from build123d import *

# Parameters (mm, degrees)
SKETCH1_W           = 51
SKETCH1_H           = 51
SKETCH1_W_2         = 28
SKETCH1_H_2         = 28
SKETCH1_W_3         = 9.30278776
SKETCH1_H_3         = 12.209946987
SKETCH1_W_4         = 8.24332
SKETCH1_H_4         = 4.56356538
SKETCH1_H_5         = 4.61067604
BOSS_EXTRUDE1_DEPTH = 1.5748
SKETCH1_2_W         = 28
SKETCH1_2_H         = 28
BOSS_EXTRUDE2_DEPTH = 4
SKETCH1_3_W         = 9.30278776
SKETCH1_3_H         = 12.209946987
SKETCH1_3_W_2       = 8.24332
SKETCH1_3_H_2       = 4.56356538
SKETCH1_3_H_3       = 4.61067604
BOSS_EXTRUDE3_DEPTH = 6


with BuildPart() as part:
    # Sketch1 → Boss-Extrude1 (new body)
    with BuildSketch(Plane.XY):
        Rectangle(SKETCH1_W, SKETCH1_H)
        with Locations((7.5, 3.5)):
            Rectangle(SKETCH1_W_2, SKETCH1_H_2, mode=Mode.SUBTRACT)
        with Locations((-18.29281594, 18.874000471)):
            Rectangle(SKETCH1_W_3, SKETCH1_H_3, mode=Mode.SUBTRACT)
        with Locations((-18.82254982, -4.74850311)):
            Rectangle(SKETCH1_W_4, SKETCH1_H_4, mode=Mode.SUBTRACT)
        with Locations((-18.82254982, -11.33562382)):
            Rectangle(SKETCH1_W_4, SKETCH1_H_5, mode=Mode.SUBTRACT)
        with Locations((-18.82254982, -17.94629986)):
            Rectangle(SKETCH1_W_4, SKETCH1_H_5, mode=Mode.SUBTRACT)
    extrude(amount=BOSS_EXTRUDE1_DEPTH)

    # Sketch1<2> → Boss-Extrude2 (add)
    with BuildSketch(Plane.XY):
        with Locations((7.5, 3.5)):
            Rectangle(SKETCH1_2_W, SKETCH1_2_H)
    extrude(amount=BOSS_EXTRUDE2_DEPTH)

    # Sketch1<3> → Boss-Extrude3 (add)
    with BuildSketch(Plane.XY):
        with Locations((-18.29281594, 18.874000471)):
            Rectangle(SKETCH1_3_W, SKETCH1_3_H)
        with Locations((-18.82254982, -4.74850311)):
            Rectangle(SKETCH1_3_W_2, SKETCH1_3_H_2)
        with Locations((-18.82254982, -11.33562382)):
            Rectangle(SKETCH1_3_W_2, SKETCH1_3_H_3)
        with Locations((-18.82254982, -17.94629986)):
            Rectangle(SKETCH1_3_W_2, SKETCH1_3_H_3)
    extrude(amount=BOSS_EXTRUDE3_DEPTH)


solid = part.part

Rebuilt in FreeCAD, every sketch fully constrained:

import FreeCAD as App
import Part
import Sketcher
from FreeCAD import Vector


def add_polygon(sketch, points):
    """Adds a closed chain of lines whose ends are joined by coincident constraints."""
    first, n = sketch.GeometryCount, len(points)
    for a, b in zip(points, points[1:] + points[:1]):
        sketch.addGeometry(Part.LineSegment(App.Vector(*a, 0), App.Vector(*b, 0)), False)
    for i in range(n):
        sketch.addConstraint(Sketcher.Constraint("Coincident", first + i, 2, first + (i + 1) % n, 1))

doc = App.newDocument("Part")
params = doc.addObject("Spreadsheet::Sheet", "Params")
for row, (alias, value) in enumerate([
    ("sketch1_width", "51 mm"),
    ("sketch1_width2", "28 mm"),
    ("pad1_length", "1.5748 mm"),
    ("sketch2_width", "28 mm"),
    ("pad2_length", "4 mm"),
    ("pad3_length", "6 mm"),
], start=1):
    params.set(f"A{row}", alias)
    params.set(f"B{row}", "=" + value)
    params.setAlias(f"B{row}", alias)

body = doc.addObject("PartDesign::Body", "Body")

# Sketch on XY plane
sketch1 = doc.addObject("Sketcher::SketchObject", "Sketch")
body.addObject(sketch1)
sketch1.AttachmentSupport = (doc.XY_Plane, [""])
sketch1.MapMode = "FlatFace"
add_polygon(sketch1, [(-25.5, 25.5), (-25.5, -25.5), (25.5, -25.5), (25.5, 25.5)])  # lines 0-3
add_polygon(sketch1, [(-14.7, -20.3), (-22.9, -20.3), (-22.9, -15.6), (-14.7, -15.6)])  # lines 4-7
add_polygon(sketch1, [(-14.7, -13.6), (-22.9, -13.6), (-22.9, -9), (-14.7, -9)])  # lines 8-11
add_polygon(sketch1, [(-14.7, -7), (-22.9, -7), (-22.9, -2.5), (-14.7, -2.5)])  # lines 12-15
add_polygon(sketch1, [(-13.6, 12.8), (-22.9, 12.8), (-22.9, 25), (-13.6, 25)])  # lines 16-19
add_polygon(sketch1, [(21.5, -10.5), (-6.5, -10.5), (-6.5, 17.5), (21.5, 17.5)])  # lines 20-23
sketch1.addConstraint([
    Sketcher.Constraint("Vertical", 0),
    Sketcher.Constraint("Horizontal", 1),
    Sketcher.Constraint("Vertical", 2),
    Sketcher.Constraint("Horizontal", 3),
    Sketcher.Constraint("Horizontal", 4),
    Sketcher.Constraint("Vertical", 5),
    Sketcher.Constraint("Horizontal", 6),
    Sketcher.Constraint("Vertical", 7),
    Sketcher.Constraint("Horizontal", 8),
    Sketcher.Constraint("Vertical", 9),
    Sketcher.Constraint("Horizontal", 10),
    Sketcher.Constraint("Vertical", 11),
    Sketcher.Constraint("Horizontal", 12),
    Sketcher.Constraint("Vertical", 13),
    Sketcher.Constraint("Horizontal", 14),
    Sketcher.Constraint("Vertical", 15),
    Sketcher.Constraint("Horizontal", 16),
    Sketcher.Constraint("Vertical", 17),
    Sketcher.Constraint("Horizontal", 18),
    Sketcher.Constraint("Vertical", 19),
    Sketcher.Constraint("Horizontal", 20),
    Sketcher.Constraint("Vertical", 21),
    Sketcher.Constraint("Horizontal", 22),
    Sketcher.Constraint("Vertical", 23),
    Sketcher.Constraint("Symmetric", 0, 2, 2, 2, -1, 1),
    Sketcher.Constraint("Vertical", 5, 2, 8, 2),
    Sketcher.Constraint("Vertical", 7, 2, 10, 2),
    Sketcher.Constraint("Vertical", 9, 2, 12, 2),
    Sketcher.Constraint("Vertical", 11, 2, 14, 2),
    Sketcher.Constraint("Vertical", 13, 2, 16, 2),
    Sketcher.Constraint("Equal", 3, 0),
    Sketcher.Constraint("Equal", 7, 9),
    Sketcher.Constraint("Equal", 22, 21),
    Sketcher.Constraint("DistanceX", 1, 1, 1, 2, 51.0),
    Sketcher.Constraint("DistanceX", 20, 2, 20, 1, 28.0),
    Sketcher.Constraint("DistanceY", 5, 2, 8, 2, 2.0),
    Sketcher.Constraint("DistanceY", 9, 2, 12, 2, 2.0),
    Sketcher.Constraint("DistanceX", 3, 2, 21, 2, 19.0),
    Sketcher.Constraint("DistanceY", 21, 2, 3, 2, 8.0),
    Sketcher.Constraint("DistanceX", 4, 2, 4, 1, 8.24332),
    Sketcher.Constraint("DistanceX", 16, 2, 16, 1, 9.302788),
    Sketcher.Constraint("DistanceY", 5, 1, 5, 2, 4.610676),
    Sketcher.Constraint("DistanceY", 13, 1, 13, 2, 4.563565),
    Sketcher.Constraint("DistanceY", 17, 1, 17, 2, 12.209947),
    Sketcher.Constraint("DistanceX", 4, 2, -1, 1, 22.94421),
    Sketcher.Constraint("DistanceY", 5, 2, -1, 1, 15.640962),
    Sketcher.Constraint("DistanceY", 12, 2, 17, 2, 32.00926),
])
sketch1.setExpression("Constraints[57]", "Params.sketch1_width")
sketch1.setExpression("Constraints[58]", "Params.sketch1_width2")
pad1 = doc.addObject("PartDesign::Pad", "Pad")
body.addObject(pad1)
pad1.Profile = sketch1
pad1.setExpression("Length", "Params.pad1_length")

# Sketch on XY plane
sketch2 = doc.addObject("Sketcher::SketchObject", "Sketch001")
body.addObject(sketch2)
sketch2.AttachmentSupport = (doc.XY_Plane, [""])
sketch2.MapMode = "FlatFace"
add_polygon(sketch2, [(-6, 18), (-6, -10), (22, -10), (22, 18)])  # lines 0-3
sketch2.addConstraint([
    Sketcher.Constraint("Vertical", 0),
    Sketcher.Constraint("Horizontal", 1),
    Sketcher.Constraint("Vertical", 2),
    Sketcher.Constraint("Horizontal", 3),
    Sketcher.Constraint("Equal", 3, 0),
    Sketcher.Constraint("DistanceX", 1, 1, 1, 2, 28.0),
    Sketcher.Constraint("DistanceX", 0, 2, -1, 1, 6.5),
    Sketcher.Constraint("DistanceY", 0, 2, -1, 1, 10.5),
])
sketch2.setExpression("Constraints[9]", "Params.sketch2_width")
pad2 = doc.addObject("PartDesign::Pad", "Pad001")
body.addObject(pad2)
pad2.Profile = sketch2
pad2.setExpression("Length", "Params.pad2_length")

# Sketch on XY plane
sketch3 = doc.addObject("Sketcher::SketchObject", "Sketch002")
body.addObject(sketch3)
sketch3.AttachmentSupport = (doc.XY_Plane, [""])
sketch3.MapMode = "FlatFace"
add_polygon(sketch3, [(-22.9, 25), (-22.9, 12.8), (-13.6, 12.8), (-13.6, 25)])  # lines 0-3
add_polygon(sketch3, [(-22.9, -2.5), (-22.9, -7), (-14.7, -7), (-14.7, -2.5)])  # lines 4-7
add_polygon(sketch3, [(-22.9, -9), (-22.9, -13.6), (-14.7, -13.6), (-14.7, -9)])  # lines 8-11
add_polygon(sketch3, [(-22.9, -15.6), (-22.9, -20.3), (-14.7, -20.3), (-14.7, -15.6)])  # lines 12-15
sketch3.addConstraint([
    Sketcher.Constraint("Vertical", 0),
    Sketcher.Constraint("Horizontal", 1),
    Sketcher.Constraint("Vertical", 2),
    Sketcher.Constraint("Horizontal", 3),
    Sketcher.Constraint("Vertical", 4),
    Sketcher.Constraint("Horizontal", 5),
    Sketcher.Constraint("Vertical", 6),
    Sketcher.Constraint("Horizontal", 7),
    Sketcher.Constraint("Vertical", 8),
    Sketcher.Constraint("Horizontal", 9),
    Sketcher.Constraint("Vertical", 10),
    Sketcher.Constraint("Horizontal", 11),
    Sketcher.Constraint("Vertical", 12),
    Sketcher.Constraint("Horizontal", 13),
    Sketcher.Constraint("Vertical", 14),
    Sketcher.Constraint("Horizontal", 15),
    Sketcher.Constraint("Vertical", 3, 2, 4, 2),
    Sketcher.Constraint("Vertical", 7, 2, 8, 2),
    Sketcher.Constraint("Vertical", 6, 2, 9, 2),
    Sketcher.Constraint("Vertical", 11, 2, 12, 2),
    Sketcher.Constraint("Vertical", 10, 2, 13, 2),
    Sketcher.Constraint("Equal", 10, 12),
    Sketcher.Constraint("DistanceY", 10, 2, 5, 2, 2.0),
    Sketcher.Constraint("DistanceY", 14, 2, 9, 2, 2.0),
    Sketcher.Constraint("DistanceX", 5, 1, 5, 2, 8.24332),
    Sketcher.Constraint("DistanceX", 1, 1, 1, 2, 9.302788),
    Sketcher.Constraint("DistanceY", 0, 2, 0, 1, 12.209947),
    Sketcher.Constraint("DistanceY", 4, 2, 4, 1, 4.563565),
    Sketcher.Constraint("DistanceY", 8, 2, 8, 1, 4.610676),
    Sketcher.Constraint("DistanceX", 0, 2, -1, 1, 22.94421),
    Sketcher.Constraint("DistanceY", 6, 2, -1, 1, 2.46672),
    Sketcher.Constraint("DistanceY", 4, 2, 3, 2, 32.00926),
])
pad3 = doc.addObject("PartDesign::Pad", "Pad002")
body.addObject(pad3)
pad3.Profile = sketch3
pad3.setExpression("Length", "Params.pad3_length")

doc.recompute()
